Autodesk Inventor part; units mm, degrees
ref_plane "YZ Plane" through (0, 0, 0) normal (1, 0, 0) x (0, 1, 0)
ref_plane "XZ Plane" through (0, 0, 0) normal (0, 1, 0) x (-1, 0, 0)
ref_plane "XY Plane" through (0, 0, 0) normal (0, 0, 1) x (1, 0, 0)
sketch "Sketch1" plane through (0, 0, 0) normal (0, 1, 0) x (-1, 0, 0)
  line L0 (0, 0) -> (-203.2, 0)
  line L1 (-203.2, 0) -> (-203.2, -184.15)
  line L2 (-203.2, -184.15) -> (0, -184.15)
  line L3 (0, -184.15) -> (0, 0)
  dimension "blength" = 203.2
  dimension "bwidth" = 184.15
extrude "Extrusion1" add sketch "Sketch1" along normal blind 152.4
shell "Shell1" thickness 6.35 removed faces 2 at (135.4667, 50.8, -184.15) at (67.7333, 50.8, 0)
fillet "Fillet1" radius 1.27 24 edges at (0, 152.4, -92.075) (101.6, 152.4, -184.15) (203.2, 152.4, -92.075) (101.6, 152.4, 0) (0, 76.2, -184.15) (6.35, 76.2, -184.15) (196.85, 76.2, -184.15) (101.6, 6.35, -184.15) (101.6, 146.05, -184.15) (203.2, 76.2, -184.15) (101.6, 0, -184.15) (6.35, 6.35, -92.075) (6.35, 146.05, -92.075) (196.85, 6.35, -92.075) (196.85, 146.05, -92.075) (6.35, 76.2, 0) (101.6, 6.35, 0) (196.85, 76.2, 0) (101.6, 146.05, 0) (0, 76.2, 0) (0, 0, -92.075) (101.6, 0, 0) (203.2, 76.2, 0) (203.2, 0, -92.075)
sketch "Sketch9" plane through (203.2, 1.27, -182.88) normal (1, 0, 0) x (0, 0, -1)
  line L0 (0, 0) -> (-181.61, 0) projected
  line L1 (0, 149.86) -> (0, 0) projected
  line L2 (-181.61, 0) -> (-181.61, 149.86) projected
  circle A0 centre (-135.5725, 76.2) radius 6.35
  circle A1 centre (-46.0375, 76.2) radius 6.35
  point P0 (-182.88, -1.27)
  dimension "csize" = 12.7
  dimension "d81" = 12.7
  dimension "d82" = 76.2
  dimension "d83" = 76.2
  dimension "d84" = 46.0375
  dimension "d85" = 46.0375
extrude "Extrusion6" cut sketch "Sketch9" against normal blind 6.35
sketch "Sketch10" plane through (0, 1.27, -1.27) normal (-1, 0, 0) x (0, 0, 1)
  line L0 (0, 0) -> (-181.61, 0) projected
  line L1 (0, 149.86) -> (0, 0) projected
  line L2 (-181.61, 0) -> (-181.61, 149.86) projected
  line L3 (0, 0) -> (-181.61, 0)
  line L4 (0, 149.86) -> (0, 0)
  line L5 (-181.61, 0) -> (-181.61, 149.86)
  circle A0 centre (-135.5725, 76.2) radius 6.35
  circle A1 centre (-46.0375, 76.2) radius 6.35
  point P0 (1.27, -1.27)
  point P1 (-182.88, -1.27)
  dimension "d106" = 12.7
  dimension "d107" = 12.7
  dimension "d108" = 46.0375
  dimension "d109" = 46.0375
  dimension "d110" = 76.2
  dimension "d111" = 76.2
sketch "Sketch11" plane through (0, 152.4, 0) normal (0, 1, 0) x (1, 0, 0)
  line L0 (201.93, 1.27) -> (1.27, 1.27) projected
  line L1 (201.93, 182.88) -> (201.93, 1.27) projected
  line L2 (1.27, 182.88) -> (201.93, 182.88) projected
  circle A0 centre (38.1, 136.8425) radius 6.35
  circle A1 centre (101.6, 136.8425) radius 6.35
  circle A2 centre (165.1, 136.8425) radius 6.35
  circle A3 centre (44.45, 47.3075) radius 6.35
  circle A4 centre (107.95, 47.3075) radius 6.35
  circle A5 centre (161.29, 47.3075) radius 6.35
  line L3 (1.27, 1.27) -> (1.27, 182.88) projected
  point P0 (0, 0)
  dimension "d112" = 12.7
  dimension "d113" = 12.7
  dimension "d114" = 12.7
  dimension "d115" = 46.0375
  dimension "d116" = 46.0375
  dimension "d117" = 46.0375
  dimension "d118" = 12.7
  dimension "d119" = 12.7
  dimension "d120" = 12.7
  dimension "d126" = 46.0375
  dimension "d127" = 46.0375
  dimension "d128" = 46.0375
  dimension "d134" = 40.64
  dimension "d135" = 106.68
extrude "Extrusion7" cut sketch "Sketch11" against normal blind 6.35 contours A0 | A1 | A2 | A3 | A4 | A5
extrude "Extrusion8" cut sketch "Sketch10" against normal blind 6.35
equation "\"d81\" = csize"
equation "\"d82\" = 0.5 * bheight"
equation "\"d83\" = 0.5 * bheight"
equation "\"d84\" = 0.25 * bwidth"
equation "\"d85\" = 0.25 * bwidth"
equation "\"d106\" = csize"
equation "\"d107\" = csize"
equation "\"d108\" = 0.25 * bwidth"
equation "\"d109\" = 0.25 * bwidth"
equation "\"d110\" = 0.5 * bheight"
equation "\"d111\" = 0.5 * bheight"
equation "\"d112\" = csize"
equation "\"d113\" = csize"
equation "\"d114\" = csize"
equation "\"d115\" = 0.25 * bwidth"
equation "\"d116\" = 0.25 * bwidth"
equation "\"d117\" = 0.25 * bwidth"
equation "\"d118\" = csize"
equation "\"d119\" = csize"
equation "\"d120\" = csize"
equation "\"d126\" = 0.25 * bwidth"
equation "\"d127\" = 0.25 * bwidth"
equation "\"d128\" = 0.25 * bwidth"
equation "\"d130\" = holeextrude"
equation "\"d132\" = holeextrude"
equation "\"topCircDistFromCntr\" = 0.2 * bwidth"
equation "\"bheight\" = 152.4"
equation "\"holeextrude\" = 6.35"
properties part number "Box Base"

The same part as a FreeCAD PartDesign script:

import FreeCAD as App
import Part
import Sketcher
Q = App.Units.Quantity


def faces_at(feature, points):
    """Names of the faces that lie closest to the given points."""
    faces = feature.Shape.Faces
    near = lambda p: min(range(len(faces)), key=lambda i: faces[i].distToShape(Part.Vertex(*p))[0])
    return sorted({f"Face{near(p) + 1}" for p in points})

doc = App.newDocument("Part")
params = doc.addObject("Spreadsheet::Sheet", "Params")
for row, (alias, value) in enumerate([
    ("sketch1_width", "8 in"),
    ("sketch1_height", "7.25 in"),
    ("pad1_length", "6 in"),
    ("thickness_wall", "0.25 in"),
    ("fillet_radius", "0.05 in"),
    ("sketch2_diameter", "0.5 in"),
    ("pocket1_length", "0.25 in"),
    ("sketch3_diameter", "0.5 in"),
    ("pocket2_length", "0.25 in"),
    ("sketch4_diameter", "0.5 in"),
    ("pocket3_length", "0.25 in"),
], start=1):
    params.set(f"A{row}", alias)
    params.set(f"B{row}", "=" + value)
    params.setAlias(f"B{row}", alias)

body = doc.addObject("PartDesign::Body", "Body")

# Sketch on XZ plane
sketch1 = body.newObject("Sketcher::SketchObject", "Sketch")
sketch1.AttachmentSupport = (doc.getObject("XZ_Plane"), [""])
sketch1.MapMode = "FlatFace"
sketch1.addGeometry(Part.LineSegment(App.Vector(0, -184, 0), App.Vector(0, 0, 0)), False)
sketch1.addGeometry(Part.LineSegment(App.Vector(0, 0, 0), App.Vector(203, 0, 0)), False)
sketch1.addGeometry(Part.LineSegment(App.Vector(203, 0, 0), App.Vector(203, -184, 0)), False)
sketch1.addGeometry(Part.LineSegment(App.Vector(203, -184, 0), App.Vector(0, -184, 0)), False)
sketch1.addConstraint(Sketcher.Constraint("Coincident", 0, 2, 1, 1))
sketch1.addConstraint(Sketcher.Constraint("Coincident", 1, 2, 2, 1))
sketch1.addConstraint(Sketcher.Constraint("Coincident", 2, 2, 3, 1))
sketch1.addConstraint(Sketcher.Constraint("Coincident", 3, 2, 0, 1))
sketch1.addConstraint(Sketcher.Constraint("Vertical", 0))
sketch1.addConstraint(Sketcher.Constraint("Horizontal", 1))
sketch1.addConstraint(Sketcher.Constraint("Vertical", 2))
sketch1.addConstraint(Sketcher.Constraint("Horizontal", 3))
sketch1.addConstraint(Sketcher.Constraint("Coincident", 0, 2, -1, 1))
sketch1.addConstraint(Sketcher.Constraint("DistanceX", 1, 1, 1, 2, Q("8 in")))
sketch1.addConstraint(Sketcher.Constraint("DistanceY", 0, 1, 0, 2, Q("7.25 in")))
sketch1.setExpression("Constraints[9]", "Params.sketch1_width")
sketch1.setExpression("Constraints[10]", "Params.sketch1_height")
pad1 = body.newObject("PartDesign::Pad", "Pad")
pad1.Profile = sketch1
pad1.setExpression("Length", "Params.pad1_length")
pad1.Reversed = True
doc.recompute()

thickness = body.newObject("PartDesign::Thickness", "Thickness")
thickness.Base = (pad1, faces_at(pad1, [(135.467, 50.8, -184.15), (67.733, 50.8, 0)]))
thickness.setExpression("Value", "Params.thickness_wall")
thickness.Reversed = True
thickness.Join = "Intersection"
doc.recompute()

fillet = body.newObject("PartDesign::Fillet", "Fillet")
fillet.Base = (thickness, ["Edge1"])
fillet.UseAllEdges = True
fillet.setExpression("Radius", "Params.fillet_radius")

# Sketch on YZ plane
sketch2 = body.newObject("Sketcher::SketchObject", "Sketch001")
sketch2.AttachmentSupport = (doc.getObject("YZ_Plane"), [""])
sketch2.MapMode = "FlatFace"
sketch2.AttachmentOffset = App.Placement(App.Vector(0, 0, 8 * 25.4), App.Rotation())
sketch2.addGeometry(Part.Circle(App.Vector(77, -47, 0), App.Vector(0, 0, 1), 6), False)
sketch2.addGeometry(Part.Circle(App.Vector(77, -137, 0), App.Vector(0, 0, 1), 6), False)
sketch2.addConstraint(Sketcher.Constraint("Equal", 0, 1))
sketch2.addConstraint(Sketcher.Constraint("Vertical", 0, 3, 1, 3))
sketch2.addConstraint(Sketcher.Constraint("Diameter", 0, Q("0.5 in")))
sketch2.addConstraint(Sketcher.Constraint("DistanceX", -1, 1, 0, 3, Q("3.05 in")))
sketch2.addConstraint(Sketcher.Constraint("DistanceY", 1, 3, 0, 3, Q("3.525 in")))
sketch2.addConstraint(Sketcher.Constraint("DistanceY", 0, 3, -1, 1, Q("1.8625 in")))
sketch2.setExpression("Constraints[2]", "Params.sketch2_diameter")
pocket1 = body.newObject("PartDesign::Pocket", "Pocket")
pocket1.Profile = sketch2
pocket1.setExpression("Length", "Params.pocket1_length")

# Sketch on XZ plane
sketch3 = body.newObject("Sketcher::SketchObject", "Sketch002")
sketch3.AttachmentSupport = (doc.getObject("XZ_Plane"), [""])
sketch3.MapMode = "FlatFace"
sketch3.AttachmentOffset = App.Placement(App.Vector(0, 0, -6 * 25.4), App.Rotation())
sketch3.addGeometry(Part.Circle(App.Vector(38, -137, 0), App.Vector(0, 0, 1), 6), False)
sketch3.addGeometry(Part.Circle(App.Vector(102, -137, 0), App.Vector(0, 0, 1), 6), False)
sketch3.addGeometry(Part.Circle(App.Vector(165, -137, 0), App.Vector(0, 0, 1), 6), False)
sketch3.addGeometry(Part.Circle(App.Vector(44, -47, 0), App.Vector(0, 0, 1), 6), False)
sketch3.addGeometry(Part.Circle(App.Vector(108, -47, 0), App.Vector(0, 0, 1), 6), False)
sketch3.addGeometry(Part.Circle(App.Vector(161, -47, 0), App.Vector(0, 0, 1), 6), False)
sketch3.addConstraint(Sketcher.Constraint("Equal", 0, 1))
sketch3.addConstraint(Sketcher.Constraint("Equal", 1, 2))
sketch3.addConstraint(Sketcher.Constraint("Equal", 2, 3))
sketch3.addConstraint(Sketcher.Constraint("Equal", 3, 4))
sketch3.addConstraint(Sketcher.Constraint("Equal", 4, 5))
sketch3.addConstraint(Sketcher.Constraint("Horizontal", 0, 3, 1, 3))
sketch3.addConstraint(Sketcher.Constraint("Horizontal", 1, 3, 2, 3))
sketch3.addConstraint(Sketcher.Constraint("Horizontal", 3, 3, 4, 3))
sketch3.addConstraint(Sketcher.Constraint("Horizontal", 4, 3, 5, 3))
sketch3.addConstraint(Sketcher.Constraint("Diameter", 0, Q("0.5 in")))
sketch3.addConstraint(Sketcher.Constraint("DistanceX", -1, 1, 1, 3, Q("4 in")))
sketch3.addConstraint(Sketcher.Constraint("DistanceX", 0, 3, 2, 3, Q("5 in")))
sketch3.addConstraint(Sketcher.Constraint("DistanceX", -1, 1, 0, 3, Q("1.5 in")))
sketch3.addConstraint(Sketcher.Constraint("DistanceX", 3, 3, 4, 3, Q("2.5 in")))
sketch3.addConstraint(Sketcher.Constraint("DistanceX", 4, 3, 5, 3, Q("2.1 in")))
sketch3.addConstraint(Sketcher.Constraint("DistanceX", -1, 1, 3, 3, Q("1.75 in")))
sketch3.addConstraint(Sketcher.Constraint("DistanceY", 0, 3, 3, 3, Q("3.525 in")))
sketch3.addConstraint(Sketcher.Constraint("DistanceY", 0, 3, -1, 1, Q("5.3875 in")))
sketch3.setExpression("Constraints[9]", "Params.sketch3_diameter")
pocket2 = body.newObject("PartDesign::Pocket", "Pocket001")
pocket2.Profile = sketch3
pocket2.setExpression("Length", "Params.pocket2_length")
pocket2.Reversed = True

# Sketch on YZ plane
sketch4 = body.newObject("Sketcher::SketchObject", "Sketch003")
sketch4.AttachmentSupport = (doc.getObject("YZ_Plane"), [""])
sketch4.MapMode = "FlatFace"
sketch4.addGeometry(Part.Circle(App.Vector(77, -137, 0), App.Vector(0, 0, 1), 6), False)
sketch4.addGeometry(Part.Circle(App.Vector(77, -47, 0), App.Vector(0, 0, 1), 6), False)
sketch4.addConstraint(Sketcher.Constraint("Equal", 0, 1))
sketch4.addConstraint(Sketcher.Constraint("Vertical", 0, 3, 1, 3))
sketch4.addConstraint(Sketcher.Constraint("Diameter", 0, Q("0.5 in")))
sketch4.addConstraint(Sketcher.Constraint("DistanceX", -1, 1, 0, 3, Q("3.05 in")))
sketch4.addConstraint(Sketcher.Constraint("DistanceY", 0, 3, 1, 3, Q("3.525 in")))
sketch4.addConstraint(Sketcher.Constraint("DistanceY", 0, 3, -1, 1, Q("5.3875 in")))
sketch4.setExpression("Constraints[2]", "Params.sketch4_diameter")
pocket3 = body.newObject("PartDesign::Pocket", "Pocket002")
pocket3.Profile = sketch4
pocket3.setExpression("Length", "Params.pocket3_length")
pocket3.Reversed = True

doc.recompute()
